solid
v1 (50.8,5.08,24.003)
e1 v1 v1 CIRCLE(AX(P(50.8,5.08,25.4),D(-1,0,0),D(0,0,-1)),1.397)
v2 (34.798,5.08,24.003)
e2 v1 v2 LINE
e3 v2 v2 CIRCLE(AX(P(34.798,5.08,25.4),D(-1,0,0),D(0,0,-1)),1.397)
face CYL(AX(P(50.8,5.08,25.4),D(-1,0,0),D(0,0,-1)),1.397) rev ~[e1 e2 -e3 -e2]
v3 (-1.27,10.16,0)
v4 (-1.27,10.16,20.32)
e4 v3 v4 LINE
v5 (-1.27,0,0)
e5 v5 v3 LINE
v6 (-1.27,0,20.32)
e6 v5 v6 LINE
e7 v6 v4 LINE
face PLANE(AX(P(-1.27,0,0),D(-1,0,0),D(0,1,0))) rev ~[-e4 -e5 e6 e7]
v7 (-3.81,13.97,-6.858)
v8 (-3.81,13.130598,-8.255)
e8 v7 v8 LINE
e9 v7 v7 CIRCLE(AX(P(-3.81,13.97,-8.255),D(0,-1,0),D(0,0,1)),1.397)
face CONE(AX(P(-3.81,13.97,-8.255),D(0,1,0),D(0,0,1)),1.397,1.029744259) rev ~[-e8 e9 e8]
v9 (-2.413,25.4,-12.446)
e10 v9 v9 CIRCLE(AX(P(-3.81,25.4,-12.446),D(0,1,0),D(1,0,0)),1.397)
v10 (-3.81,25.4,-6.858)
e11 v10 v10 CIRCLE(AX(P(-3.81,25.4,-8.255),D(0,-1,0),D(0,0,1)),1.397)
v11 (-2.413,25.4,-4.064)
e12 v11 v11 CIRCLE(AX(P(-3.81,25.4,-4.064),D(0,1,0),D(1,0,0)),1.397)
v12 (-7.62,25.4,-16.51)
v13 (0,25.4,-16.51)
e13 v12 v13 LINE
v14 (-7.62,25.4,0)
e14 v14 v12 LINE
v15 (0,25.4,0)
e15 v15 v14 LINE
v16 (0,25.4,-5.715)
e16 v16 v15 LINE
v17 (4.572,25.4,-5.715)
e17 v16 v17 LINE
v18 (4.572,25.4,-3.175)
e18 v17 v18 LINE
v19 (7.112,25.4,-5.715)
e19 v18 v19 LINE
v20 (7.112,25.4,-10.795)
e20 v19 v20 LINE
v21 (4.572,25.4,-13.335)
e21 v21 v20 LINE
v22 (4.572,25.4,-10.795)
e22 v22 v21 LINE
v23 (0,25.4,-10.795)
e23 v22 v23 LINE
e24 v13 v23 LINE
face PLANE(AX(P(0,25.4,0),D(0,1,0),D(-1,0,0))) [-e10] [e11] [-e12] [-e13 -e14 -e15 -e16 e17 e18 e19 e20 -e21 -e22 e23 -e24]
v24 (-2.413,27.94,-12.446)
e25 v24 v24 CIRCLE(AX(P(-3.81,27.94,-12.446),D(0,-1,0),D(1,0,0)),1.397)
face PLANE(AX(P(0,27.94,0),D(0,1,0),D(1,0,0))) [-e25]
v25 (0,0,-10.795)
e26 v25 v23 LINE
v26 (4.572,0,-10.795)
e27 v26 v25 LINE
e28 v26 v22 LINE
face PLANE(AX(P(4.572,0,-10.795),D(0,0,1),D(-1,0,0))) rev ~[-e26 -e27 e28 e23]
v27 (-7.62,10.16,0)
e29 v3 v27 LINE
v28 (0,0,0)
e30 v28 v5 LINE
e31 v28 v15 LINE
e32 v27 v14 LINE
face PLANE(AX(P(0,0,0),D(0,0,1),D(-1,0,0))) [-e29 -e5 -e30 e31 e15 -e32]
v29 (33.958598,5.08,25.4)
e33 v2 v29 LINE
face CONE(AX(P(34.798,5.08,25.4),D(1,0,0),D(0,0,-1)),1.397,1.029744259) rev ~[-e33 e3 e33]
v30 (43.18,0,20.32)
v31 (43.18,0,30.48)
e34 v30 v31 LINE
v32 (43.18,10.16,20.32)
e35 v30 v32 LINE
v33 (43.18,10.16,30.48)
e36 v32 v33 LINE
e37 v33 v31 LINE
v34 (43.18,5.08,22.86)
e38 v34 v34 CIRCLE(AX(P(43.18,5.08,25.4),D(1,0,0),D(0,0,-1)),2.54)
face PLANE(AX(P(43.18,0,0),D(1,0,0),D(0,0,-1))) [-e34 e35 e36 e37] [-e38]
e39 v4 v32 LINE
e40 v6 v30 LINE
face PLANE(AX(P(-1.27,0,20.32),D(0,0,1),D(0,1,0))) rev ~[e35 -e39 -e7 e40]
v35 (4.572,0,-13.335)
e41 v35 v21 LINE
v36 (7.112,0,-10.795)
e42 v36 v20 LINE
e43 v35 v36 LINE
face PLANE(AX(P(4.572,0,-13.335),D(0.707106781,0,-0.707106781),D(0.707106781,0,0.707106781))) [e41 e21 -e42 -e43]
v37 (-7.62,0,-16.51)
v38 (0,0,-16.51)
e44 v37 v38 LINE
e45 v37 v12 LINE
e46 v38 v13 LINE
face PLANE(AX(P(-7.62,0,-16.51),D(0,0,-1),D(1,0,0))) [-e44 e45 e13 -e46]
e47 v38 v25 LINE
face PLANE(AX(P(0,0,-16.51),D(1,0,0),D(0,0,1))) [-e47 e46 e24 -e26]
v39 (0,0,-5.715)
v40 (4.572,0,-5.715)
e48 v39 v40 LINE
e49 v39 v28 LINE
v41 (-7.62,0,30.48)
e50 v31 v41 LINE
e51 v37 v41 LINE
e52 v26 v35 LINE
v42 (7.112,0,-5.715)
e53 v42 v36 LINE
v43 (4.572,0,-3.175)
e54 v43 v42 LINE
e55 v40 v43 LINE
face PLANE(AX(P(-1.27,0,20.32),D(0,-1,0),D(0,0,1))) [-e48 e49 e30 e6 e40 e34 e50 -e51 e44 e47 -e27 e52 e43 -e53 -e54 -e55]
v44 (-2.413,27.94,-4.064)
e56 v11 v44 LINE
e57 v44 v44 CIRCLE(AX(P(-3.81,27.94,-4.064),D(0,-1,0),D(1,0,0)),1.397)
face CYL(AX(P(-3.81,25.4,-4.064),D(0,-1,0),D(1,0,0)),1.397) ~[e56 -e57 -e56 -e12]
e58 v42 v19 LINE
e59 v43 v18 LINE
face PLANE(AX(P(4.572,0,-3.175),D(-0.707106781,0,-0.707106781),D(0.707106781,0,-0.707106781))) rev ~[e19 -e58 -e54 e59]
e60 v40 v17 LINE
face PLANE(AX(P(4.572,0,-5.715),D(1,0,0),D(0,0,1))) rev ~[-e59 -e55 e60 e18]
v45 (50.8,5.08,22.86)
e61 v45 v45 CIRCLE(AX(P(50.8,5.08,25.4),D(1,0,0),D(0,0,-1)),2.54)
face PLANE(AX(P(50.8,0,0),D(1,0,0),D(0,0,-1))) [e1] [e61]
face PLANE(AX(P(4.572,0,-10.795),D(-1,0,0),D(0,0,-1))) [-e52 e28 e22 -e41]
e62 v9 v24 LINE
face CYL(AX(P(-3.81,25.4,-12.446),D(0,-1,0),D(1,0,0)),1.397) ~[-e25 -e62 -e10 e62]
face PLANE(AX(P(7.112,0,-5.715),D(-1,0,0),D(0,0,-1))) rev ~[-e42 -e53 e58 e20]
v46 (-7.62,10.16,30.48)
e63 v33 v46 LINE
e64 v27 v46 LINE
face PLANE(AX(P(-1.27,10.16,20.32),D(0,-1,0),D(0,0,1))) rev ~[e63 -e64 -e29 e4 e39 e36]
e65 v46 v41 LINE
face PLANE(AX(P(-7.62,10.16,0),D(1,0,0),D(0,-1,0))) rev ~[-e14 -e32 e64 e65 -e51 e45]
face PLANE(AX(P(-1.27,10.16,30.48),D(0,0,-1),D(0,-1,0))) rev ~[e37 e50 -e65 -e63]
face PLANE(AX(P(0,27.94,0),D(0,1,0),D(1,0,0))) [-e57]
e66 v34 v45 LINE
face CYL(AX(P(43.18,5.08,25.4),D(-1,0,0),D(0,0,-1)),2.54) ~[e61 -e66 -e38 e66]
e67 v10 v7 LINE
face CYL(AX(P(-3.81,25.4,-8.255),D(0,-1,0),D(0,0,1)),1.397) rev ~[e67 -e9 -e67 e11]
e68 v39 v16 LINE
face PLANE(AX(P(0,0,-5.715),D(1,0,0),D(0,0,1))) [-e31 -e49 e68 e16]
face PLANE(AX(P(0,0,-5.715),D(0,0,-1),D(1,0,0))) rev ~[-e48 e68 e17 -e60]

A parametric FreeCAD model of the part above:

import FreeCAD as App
import Part
import Sketcher

V = App.Vector
Q = App.Units.Quantity


def add_polygon(sketch, points):
    """Adds a closed chain of lines whose ends are joined by coincident constraints."""
    first, n = sketch.GeometryCount, len(points)
    for a, b in zip(points, points[1:] + points[:1]):
        sketch.addGeometry(Part.LineSegment(App.Vector(*a, 0), App.Vector(*b, 0)), False)
    for i in range(n):
        sketch.addConstraint(Sketcher.Constraint("Coincident", first + i, 2, first + (i + 1) % n, 1))

doc = App.newDocument("Part")
body = doc.addObject("PartDesign::Body", "Body")

sketch1 = body.newObject("Sketcher::SketchObject", "Sketch")
sketch1.AttachmentSupport = (doc.getObject("XZ_Plane"), [""])
sketch1.MapMode = "FlatFace"
add_polygon(sketch1, [(-7.6, 0), (0, 0), (0, -5.7), (4.6, -5.7), (4.6, -3.2), (7.1, -5.7), (7.1, -10.8), (4.6, -13.3), (4.6, -10.8), (0, -10.8), (0, -16.5), (-7.6, -16.5)])
sketch1.addConstraint(Sketcher.Constraint("Horizontal", 0))
sketch1.addConstraint(Sketcher.Constraint("Vertical", 1))
sketch1.addConstraint(Sketcher.Constraint("Horizontal", 2))
sketch1.addConstraint(Sketcher.Constraint("Vertical", 3))
sketch1.addConstraint(Sketcher.Constraint("Vertical", 5))
sketch1.addConstraint(Sketcher.Constraint("Vertical", 7))
sketch1.addConstraint(Sketcher.Constraint("Horizontal", 8))
sketch1.addConstraint(Sketcher.Constraint("Vertical", 9))
sketch1.addConstraint(Sketcher.Constraint("Horizontal", 10))
sketch1.addConstraint(Sketcher.Constraint("Vertical", 11))
sketch1.addConstraint(Sketcher.Constraint("Coincident", 0, 2, -1, 1))
sketch1.addConstraint(Sketcher.Constraint("PointOnObject", 8, 2, -2))
sketch1.addConstraint(Sketcher.Constraint("Perpendicular", 4, 6))
sketch1.addConstraint(Sketcher.Constraint("Horizontal", 2, 2, 4, 2))
sketch1.addConstraint(Sketcher.Constraint("Horizontal", 5, 2, 7, 2))
sketch1.addConstraint(Sketcher.Constraint("Vertical", 3, 2, 6, 2))
sketch1.addConstraint(Sketcher.Constraint("Equal", 3, 7))
sketch1.addConstraint(Sketcher.Constraint("Equal", 1, 9))
sketch1.addConstraint(Sketcher.Constraint("DistanceX", 0, 1, 0, 2, Q("0.3 in")))
sketch1.addConstraint(Sketcher.Constraint("DistanceY", 3, 1, 3, 2, Q("0.1 in")))
sketch1.addConstraint(Sketcher.Constraint("DistanceY", 5, 2, 5, 1, Q("0.2 in")))
sketch1.addConstraint(Sketcher.Constraint("DistanceY", 11, 1, 11, 2, Q("0.65 in")))
sketch1.addConstraint(Sketcher.Constraint("DistanceX", -1, 1, 4, 2, Q("0.28 in")))
pad1 = body.newObject("PartDesign::Pad", "Pad")
pad1.Profile = sketch1
pad1.Length = Q("1 in")
pad1.Reversed = True

sketch2 = body.newObject("Sketcher::SketchObject", "Sketch001")
sketch2.AttachmentSupport = (doc.getObject("XZ_Plane"), [""])
sketch2.MapMode = "FlatFace"
sketch2.AttachmentOffset = App.Placement(V(0, 0, -1 * 25.4), App.Rotation())
sketch2.addGeometry(Part.Circle(V(-3.8, -4.1, 0), V(0, 0, 1), 1.4), False)
sketch2.addGeometry(Part.Circle(V(-3.8, -12.4, 0), V(0, 0, 1), 1.4), False)
sketch2.addConstraint(Sketcher.Constraint("Equal", 0, 1))
sketch2.addConstraint(Sketcher.Constraint("Vertical", 0, 3, 1, 3))
sketch2.addConstraint(Sketcher.Constraint("Diameter", 0, Q("0.11 in")))
sketch2.addConstraint(Sketcher.Constraint("DistanceY", 0, 3, -1, 1, Q("0.16 in")))
sketch2.addConstraint(Sketcher.Constraint("DistanceX", 0, 3, -1, 1, Q("0.15 in")))
sketch2.addConstraint(Sketcher.Constraint("DistanceY", 1, 3, -1, 1, Q("0.49 in")))
pad2 = body.newObject("PartDesign::Pad", "Pad001")
pad2.Profile = sketch2
pad2.Length = Q("0.1 in")
pad2.Reversed = True

sketch3 = body.newObject("Sketcher::SketchObject", "Sketch002")
sketch3.AttachmentSupport = (doc.getObject("XZ_Plane"), [""])
sketch3.MapMode = "FlatFace"
sketch3.AttachmentOffset = App.Placement(V(0, 0, -1 * 25.4), App.Rotation())
sketch3.addGeometry(Part.Circle(V(-3.8, -8.3, 0), V(0, 0, 1), 1.4), False)
sketch3.addConstraint(Sketcher.Constraint("Diameter", 0, Q("0.11 in")))
sketch3.addConstraint(Sketcher.Constraint("DistanceX", 0, 3, -1, 1, Q("0.15 in")))
sketch3.addConstraint(Sketcher.Constraint("DistanceY", 0, 3, -1, 1, Q("0.325 in")))
doc.recompute()
hole = body.newObject("PartDesign::Hole", "Hole")
hole.Profile = sketch3
hole.ThreadType = "None"
hole.Diameter = Q("0.11 in")
hole.DepthType = "Dimension"
hole.Depth = Q("0.45 in")
hole.DrillPoint = "Angled"
hole.DrillPointAngle = 118
hole.Reversed = True

sketch4 = body.newObject("Sketcher::SketchObject", "Sketch003")
sketch4.AttachmentSupport = (doc.getObject("XY_Plane"), [""])
sketch4.MapMode = "FlatFace"
add_polygon(sketch4, [(-8, 10), (-8, 0), (-1, 0), (-1, 10)])
sketch4.addConstraint(Sketcher.Constraint("Vertical", 0))
sketch4.addConstraint(Sketcher.Constraint("Horizontal", 1))
sketch4.addConstraint(Sketcher.Constraint("Vertical", 2))
sketch4.addConstraint(Sketcher.Constraint("Horizontal", 3))
sketch4.addConstraint(Sketcher.Constraint("PointOnObject", 0, 2, -1))
sketch4.addConstraint(Sketcher.Constraint("DistanceY", 0, 2, 0, 1, Q("0.4 in")))
sketch4.addConstraint(Sketcher.Constraint("DistanceX", 1, 1, 1, 2, Q("0.25 in")))
sketch4.addConstraint(Sketcher.Constraint("DistanceX", 0, 2, -1, 1, Q("0.3 in")))
pad3 = body.newObject("PartDesign::Pad", "Pad002")
pad3.Profile = sketch4
pad3.Length = Q("1.2 in")

sketch5 = body.newObject("Sketcher::SketchObject", "Sketch004")
sketch5.AttachmentSupport = (doc.getObject("YZ_Plane"), [""])
sketch5.MapMode = "FlatFace"
sketch5.AttachmentOffset = App.Placement(V(0, 0, -0.05 * 25.4), App.Rotation())
add_polygon(sketch5, [(0, 30), (0, 20), (10, 20), (10, 30)])
sketch5.addConstraint(Sketcher.Constraint("Vertical", 0))
sketch5.addConstraint(Sketcher.Constraint("Horizontal", 1))
sketch5.addConstraint(Sketcher.Constraint("Vertical", 2))
sketch5.addConstraint(Sketcher.Constraint("Horizontal", 3))
sketch5.addConstraint(Sketcher.Constraint("PointOnObject", 0, 2, -2))
sketch5.addConstraint(Sketcher.Constraint("Equal", 3, 0))
sketch5.addConstraint(Sketcher.Constraint("DistanceX", 1, 1, 1, 2, Q("0.4 in")))
sketch5.addConstraint(Sketcher.Constraint("DistanceY", -1, 1, 0, 2, Q("0.8 in")))
pad4 = body.newObject("PartDesign::Pad", "Pad003")
pad4.Profile = sketch5
pad4.Length = Q("1.75 in")

sketch6 = body.newObject("Sketcher::SketchObject", "Sketch005")
sketch6.AttachmentSupport = (doc.getObject("YZ_Plane"), [""])
sketch6.MapMode = "FlatFace"
sketch6.AttachmentOffset = App.Placement(V(0, 0, 1.7 * 25.4), App.Rotation())
sketch6.addGeometry(Part.Circle(V(5.1, 25.4, 0), V(0, 0, 1), 2.5), False)
sketch6.addConstraint(Sketcher.Constraint("Diameter", 0, Q("0.2 in")))
sketch6.addConstraint(Sketcher.Constraint("DistanceX", -1, 1, 0, 3, Q("0.2 in")))
sketch6.addConstraint(Sketcher.Constraint("DistanceY", -1, 1, 0, 3, Q("1 in")))
pad5 = body.newObject("PartDesign::Pad", "Pad004")
pad5.Profile = sketch6
pad5.Length = Q("0.3 in")

sketch7 = body.newObject("Sketcher::SketchObject", "Sketch006")
sketch7.AttachmentSupport = (doc.getObject("YZ_Plane"), [""])
sketch7.MapMode = "FlatFace"
sketch7.AttachmentOffset = App.Placement(V(0, 0, 2 * 25.4), App.Rotation())
sketch7.addGeometry(Part.Circle(V(5.1, 25.4, 0), V(0, 0, 1), 1.4), False)
sketch7.addConstraint(Sketcher.Constraint("Diameter", 0, Q("0.11 in")))
sketch7.addConstraint(Sketcher.Constraint("DistanceY", -1, 1, 0, 3, Q("1 in")))
sketch7.addConstraint(Sketcher.Constraint("DistanceX", -1, 1, 0, 3, Q("0.2 in")))
doc.recompute()
hole2 = body.newObject("PartDesign::Hole", "Hole001")
hole2.Profile = sketch7
hole2.ThreadType = "None"
hole2.Diameter = Q("0.11 in")
hole2.DepthType = "Dimension"
hole2.Depth = Q("0.63 in")
hole2.DrillPoint = "Angled"
hole2.DrillPointAngle = 118

doc.recompute()
